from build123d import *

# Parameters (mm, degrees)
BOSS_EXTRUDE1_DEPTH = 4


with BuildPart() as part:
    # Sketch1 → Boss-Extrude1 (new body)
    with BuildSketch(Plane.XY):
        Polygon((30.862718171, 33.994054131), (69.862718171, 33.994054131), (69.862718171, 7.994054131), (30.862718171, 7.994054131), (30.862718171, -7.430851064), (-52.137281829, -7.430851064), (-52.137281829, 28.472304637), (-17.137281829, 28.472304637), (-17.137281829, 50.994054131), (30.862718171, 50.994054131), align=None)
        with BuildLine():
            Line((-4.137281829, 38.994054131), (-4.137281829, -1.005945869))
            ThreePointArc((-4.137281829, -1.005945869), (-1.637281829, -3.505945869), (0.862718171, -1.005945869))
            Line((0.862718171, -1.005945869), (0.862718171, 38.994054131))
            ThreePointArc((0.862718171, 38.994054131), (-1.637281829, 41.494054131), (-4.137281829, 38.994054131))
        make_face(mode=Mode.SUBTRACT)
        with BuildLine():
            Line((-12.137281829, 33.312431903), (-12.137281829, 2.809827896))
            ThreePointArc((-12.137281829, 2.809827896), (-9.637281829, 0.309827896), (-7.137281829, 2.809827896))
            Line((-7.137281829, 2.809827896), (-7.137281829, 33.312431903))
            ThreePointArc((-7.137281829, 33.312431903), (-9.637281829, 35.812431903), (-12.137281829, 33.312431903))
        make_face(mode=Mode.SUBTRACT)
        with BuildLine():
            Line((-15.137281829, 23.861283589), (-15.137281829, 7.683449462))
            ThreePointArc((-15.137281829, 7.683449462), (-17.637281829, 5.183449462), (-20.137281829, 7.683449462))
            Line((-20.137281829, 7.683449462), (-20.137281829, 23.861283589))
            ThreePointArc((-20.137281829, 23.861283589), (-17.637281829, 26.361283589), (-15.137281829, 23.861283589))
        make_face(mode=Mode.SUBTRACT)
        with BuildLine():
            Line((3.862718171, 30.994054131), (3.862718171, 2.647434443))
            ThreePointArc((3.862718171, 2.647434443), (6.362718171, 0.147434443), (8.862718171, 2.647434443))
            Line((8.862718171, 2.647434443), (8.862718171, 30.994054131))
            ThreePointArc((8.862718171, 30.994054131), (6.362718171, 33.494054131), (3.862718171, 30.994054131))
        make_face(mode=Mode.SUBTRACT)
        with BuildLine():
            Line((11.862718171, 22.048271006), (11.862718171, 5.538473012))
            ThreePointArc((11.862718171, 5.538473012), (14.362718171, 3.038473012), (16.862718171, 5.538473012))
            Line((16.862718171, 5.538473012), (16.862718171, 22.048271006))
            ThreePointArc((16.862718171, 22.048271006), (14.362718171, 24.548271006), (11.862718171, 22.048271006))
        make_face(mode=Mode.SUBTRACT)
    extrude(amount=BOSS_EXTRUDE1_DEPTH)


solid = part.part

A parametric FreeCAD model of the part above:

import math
import FreeCAD as App
import Part
import Sketcher


def add_polygon(sketch, points):
    """Adds a closed chain of lines whose ends are joined by coincident constraints."""
    first, n = sketch.GeometryCount, len(points)
    for a, b in zip(points, points[1:] + points[:1]):
        sketch.addGeometry(Part.LineSegment(App.Vector(*a, 0), App.Vector(*b, 0)), False)
    for i in range(n):
        sketch.addConstraint(Sketcher.Constraint("Coincident", first + i, 2, first + (i + 1) % n, 1))

doc = App.newDocument("Part")
body = doc.addObject("PartDesign::Body", "Body")

# Sketch on XY plane
sketch1 = body.newObject("Sketcher::SketchObject", "Sketch")
sketch1.AttachmentSupport = (doc.getObject("XY_Plane"), [""])
sketch1.MapMode = "FlatFace"
add_polygon(sketch1, [(69.9, 34), (30.9, 34), (30.9, 51), (-17.1, 51), (-17.1, 28.5), (-52.1, 28.5), (-52.1, -7.4), (30.9, -7.4), (30.9, 8), (69.9, 8)])  # lines 0-9
sketch1.addGeometry(Part.ArcOfCircle(Part.Circle(App.Vector(14.4, 22, 0), App.Vector(0, 0, 1), 2.5), math.radians(0), math.radians(180)), False)  # 10
sketch1.addGeometry(Part.LineSegment(App.Vector(16.9, 22, 0), App.Vector(16.9, 5.5, 0)), False)  # 11
sketch1.addGeometry(Part.ArcOfCircle(Part.Circle(App.Vector(14.4, 5.5, 0), App.Vector(0, 0, 1), 2.5), math.radians(180), math.radians(360)), False)  # 12
sketch1.addGeometry(Part.LineSegment(App.Vector(11.9, 5.5, 0), App.Vector(11.9, 22, 0)), False)  # 13
sketch1.addGeometry(Part.ArcOfCircle(Part.Circle(App.Vector(6.4, 31, 0), App.Vector(0, 0, 1), 2.5), math.radians(0), math.radians(180)), False)  # 14
sketch1.addGeometry(Part.LineSegment(App.Vector(8.9, 31, 0), App.Vector(8.9, 2.6, 0)), False)  # 15
sketch1.addGeometry(Part.ArcOfCircle(Part.Circle(App.Vector(6.4, 2.6, 0), App.Vector(0, 0, 1), 2.5), math.radians(180), math.radians(360)), False)  # 16
sketch1.addGeometry(Part.LineSegment(App.Vector(3.9, 2.6, 0), App.Vector(3.9, 31, 0)), False)  # 17
sketch1.addGeometry(Part.ArcOfCircle(Part.Circle(App.Vector(-9.6, 33.3, 0), App.Vector(0, 0, 1), 2.5), math.radians(0), math.radians(180)), False)  # 18
sketch1.addGeometry(Part.LineSegment(App.Vector(-7.1, 33.3, 0), App.Vector(-7.1, 2.8, 0)), False)  # 19
sketch1.addGeometry(Part.ArcOfCircle(Part.Circle(App.Vector(-9.6, 2.8, 0), App.Vector(0, 0, 1), 2.5), math.radians(180), math.radians(360)), False)  # 20
sketch1.addGeometry(Part.LineSegment(App.Vector(-12.1, 2.8, 0), App.Vector(-12.1, 33.3, 0)), False)  # 21
sketch1.addGeometry(Part.LineSegment(App.Vector(-15.1, 23.9, 0), App.Vector(-15.1, 7.7, 0)), False)  # 22
sketch1.addGeometry(Part.ArcOfCircle(Part.Circle(App.Vector(-17.6, 7.7, 0), App.Vector(0, 0, 1), 2.5), math.radians(180), math.radians(360)), False)  # 23
sketch1.addGeometry(Part.LineSegment(App.Vector(-20.1, 7.7, 0), App.Vector(-20.1, 23.9, 0)), False)  # 24
sketch1.addGeometry(Part.ArcOfCircle(Part.Circle(App.Vector(-17.6, 23.9, 0), App.Vector(0, 0, 1), 2.5), math.radians(0), math.radians(180)), False)  # 25
sketch1.addGeometry(Part.ArcOfCircle(Part.Circle(App.Vector(-1.6, 39, 0), App.Vector(0, 0, 1), 2.5), math.radians(0), math.radians(180)), False)  # 26
sketch1.addGeometry(Part.LineSegment(App.Vector(0.9, 39, 0), App.Vector(0.9, -1, 0)), False)  # 27
sketch1.addGeometry(Part.ArcOfCircle(Part.Circle(App.Vector(-1.6, -1, 0), App.Vector(0, 0, 1), 2.5), math.radians(180), math.radians(360)), False)  # 28
sketch1.addGeometry(Part.LineSegment(App.Vector(-4.1, -1, 0), App.Vector(-4.1, 39, 0)), False)  # 29
sketch1.addConstraint(Sketcher.Constraint("Tangent", 10, 1, 11, 1))
sketch1.addConstraint(Sketcher.Constraint("Tangent", 11, 2, 12, 2))
sketch1.addConstraint(Sketcher.Constraint("Tangent", 12, 1, 13, 1))
sketch1.addConstraint(Sketcher.Constraint("Tangent", 13, 2, 10, 2))
sketch1.addConstraint(Sketcher.Constraint("Tangent", 14, 1, 15, 1))
sketch1.addConstraint(Sketcher.Constraint("Tangent", 15, 2, 16, 2))
sketch1.addConstraint(Sketcher.Constraint("Tangent", 16, 1, 17, 1))
sketch1.addConstraint(Sketcher.Constraint("Tangent", 17, 2, 14, 2))
sketch1.addConstraint(Sketcher.Constraint("Tangent", 18, 1, 19, 1))
sketch1.addConstraint(Sketcher.Constraint("Tangent", 19, 2, 20, 2))
sketch1.addConstraint(Sketcher.Constraint("Tangent", 20, 1, 21, 1))
sketch1.addConstraint(Sketcher.Constraint("Tangent", 21, 2, 18, 2))
sketch1.addConstraint(Sketcher.Constraint("Tangent", 22, 2, 23, 2))
sketch1.addConstraint(Sketcher.Constraint("Tangent", 23, 1, 24, 1))
sketch1.addConstraint(Sketcher.Constraint("Tangent", 24, 2, 25, 2))
sketch1.addConstraint(Sketcher.Constraint("Tangent", 25, 1, 22, 1))
sketch1.addConstraint(Sketcher.Constraint("Tangent", 26, 1, 27, 1))
sketch1.addConstraint(Sketcher.Constraint("Tangent", 27, 2, 28, 2))
sketch1.addConstraint(Sketcher.Constraint("Tangent", 28, 1, 29, 1))
sketch1.addConstraint(Sketcher.Constraint("Tangent", 29, 2, 26, 2))
sketch1.addConstraint(Sketcher.Constraint("Horizontal", 0))
sketch1.addConstraint(Sketcher.Constraint("Vertical", 1))
sketch1.addConstraint(Sketcher.Constraint("Horizontal", 2))
sketch1.addConstraint(Sketcher.Constraint("Vertical", 3))
sketch1.addConstraint(Sketcher.Constraint("Horizontal", 4))
sketch1.addConstraint(Sketcher.Constraint("Vertical", 5))
sketch1.addConstraint(Sketcher.Constraint("Horizontal", 6))
sketch1.addConstraint(Sketcher.Constraint("Vertical", 7))
sketch1.addConstraint(Sketcher.Constraint("Horizontal", 8))
sketch1.addConstraint(Sketcher.Constraint("Vertical", 9))
sketch1.addConstraint(Sketcher.Constraint("Vertical", 11))
sketch1.addConstraint(Sketcher.Constraint("Vertical", 13))
sketch1.addConstraint(Sketcher.Constraint("Vertical", 15))
sketch1.addConstraint(Sketcher.Constraint("Vertical", 17))
sketch1.addConstraint(Sketcher.Constraint("Vertical", 19))
sketch1.addConstraint(Sketcher.Constraint("Vertical", 21))
sketch1.addConstraint(Sketcher.Constraint("Vertical", 22))
sketch1.addConstraint(Sketcher.Constraint("Vertical", 24))
sketch1.addConstraint(Sketcher.Constraint("Vertical", 27))
sketch1.addConstraint(Sketcher.Constraint("Vertical", 29))
sketch1.addConstraint(Sketcher.Constraint("Equal", 12, 14))
sketch1.addConstraint(Sketcher.Constraint("Equal", 16, 18))
sketch1.addConstraint(Sketcher.Constraint("Equal", 20, 23))
sketch1.addConstraint(Sketcher.Constraint("Equal", 25, 26))
sketch1.addConstraint(Sketcher.Constraint("Vertical", 1, 2, 6, 2))
sketch1.addConstraint(Sketcher.Constraint("Radius", 10, 2.5))
sketch1.addConstraint(Sketcher.Constraint("DistanceX", 0, 2, 0, 1, 39.0))
sketch1.addConstraint(Sketcher.Constraint("DistanceX", 2, 2, 2, 1, 48.0))
sketch1.addConstraint(Sketcher.Constraint("DistanceX", 4, 2, 4, 1, 35.0))
sketch1.addConstraint(Sketcher.Constraint("DistanceY", 1, 1, 1, 2, 17.0))
sketch1.addConstraint(Sketcher.Constraint("DistanceY", 9, 1, 9, 2, 26.0))
sketch1.addConstraint(Sketcher.Constraint("DistanceY", 27, 2, 27, 1, 40.0))
sketch1.addConstraint(Sketcher.Constraint("DistanceX", 14, 3, 10, 3, 8.0))
sketch1.addConstraint(Sketcher.Constraint("DistanceX", 18, 3, 14, 3, 16.0))
sketch1.addConstraint(Sketcher.Constraint("DistanceX", 23, 3, 20, 3, 8.0))
sketch1.addConstraint(Sketcher.Constraint("DistanceX", 18, 3, 26, 3, 8.0))
sketch1.addConstraint(Sketcher.Constraint("DistanceY", 14, 3, 26, 3, 8.0))
sketch1.addConstraint(Sketcher.Constraint("DistanceY", 14, 3, 0, 2, 3.0))
sketch1.addConstraint(Sketcher.Constraint("DistanceX", 10, 1, 0, 2, 14.0))
sketch1.addConstraint(Sketcher.Constraint("DistanceY", 3, 2, 3, 1, 22.521749))
sketch1.addConstraint(Sketcher.Constraint("DistanceY", 15, 2, 15, 1, 28.34662))
sketch1.addConstraint(Sketcher.Constraint("DistanceY", 5, 2, 23, 3, 15.114301))
sketch1.addConstraint(Sketcher.Constraint("DistanceY", 5, 2, 5, 1, 35.903156))
sketch1.addConstraint(Sketcher.Constraint("DistanceY", 11, 2, 11, 1, 16.509798))
sketch1.addConstraint(Sketcher.Constraint("DistanceY", 19, 2, 19, 1, 30.502604))
sketch1.addConstraint(Sketcher.Constraint("DistanceY", 22, 2, 22, 1, 16.177834))
sketch1.addConstraint(Sketcher.Constraint("DistanceX", -1, 1, 10, 3, 14.362718))
sketch1.addConstraint(Sketcher.Constraint("DistanceY", -1, 1, 10, 3, 22.048271))
sketch1.addConstraint(Sketcher.Constraint("DistanceY", -1, 1, 18, 3, 33.312432))
sketch1.addConstraint(Sketcher.Constraint("DistanceY", -1, 1, 23, 3, 7.683449))
pad1 = body.newObject("PartDesign::Pad", "Pad")
pad1.Profile = sketch1
pad1.Length = 4

doc.recompute()
